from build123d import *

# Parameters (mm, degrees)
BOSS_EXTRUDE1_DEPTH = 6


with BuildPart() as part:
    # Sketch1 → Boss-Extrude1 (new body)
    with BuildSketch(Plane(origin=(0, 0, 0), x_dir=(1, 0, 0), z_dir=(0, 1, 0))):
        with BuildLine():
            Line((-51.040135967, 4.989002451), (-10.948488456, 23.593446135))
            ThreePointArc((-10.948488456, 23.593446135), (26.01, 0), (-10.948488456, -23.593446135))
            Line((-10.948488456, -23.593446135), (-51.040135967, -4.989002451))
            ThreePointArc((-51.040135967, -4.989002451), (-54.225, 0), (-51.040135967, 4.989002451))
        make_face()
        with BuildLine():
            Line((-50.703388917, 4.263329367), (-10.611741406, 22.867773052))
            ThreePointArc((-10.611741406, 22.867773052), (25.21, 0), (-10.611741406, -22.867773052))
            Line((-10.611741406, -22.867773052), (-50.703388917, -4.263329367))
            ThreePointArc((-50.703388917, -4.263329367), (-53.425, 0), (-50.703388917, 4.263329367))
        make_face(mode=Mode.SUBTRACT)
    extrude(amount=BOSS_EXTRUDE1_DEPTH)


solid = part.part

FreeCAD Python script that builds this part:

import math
import FreeCAD as App
import Part
import Sketcher
from FreeCAD import Vector
Q = App.Units.Quantity

doc = App.newDocument("Part")
params = doc.addObject("Spreadsheet::Sheet", "Params")
for row, (alias, value) in enumerate([
    ("sketch1_radius", "5.5 mm"),
    ("sketch1_radius2", "4.7 mm"),
    ("sketch1_radius3", "26.01 mm"),
    ("pad1_length", "6 mm"),
], start=1):
    params.set(f"A{row}", alias)
    params.set(f"B{row}", "=" + value)
    params.setAlias(f"B{row}", alias)

body = doc.addObject("PartDesign::Body", "Body")

# Sketch on XZ plane
sketch1 = doc.addObject("Sketcher::SketchObject", "Sketch")
body.addObject(sketch1)
sketch1.AttachmentSupport = (doc.XZ_Plane, [""])
sketch1.MapMode = "FlatFace"
sketch1.addGeometry(Part.LineSegment(Vector(-10.9, -23.6, 0), Vector(-51, -5, 0)), False)
sketch1.addGeometry(Part.ArcOfCircle(Part.Circle(Vector(-48.7, 0, 0), Vector(0, 0, 1), 5.5), math.radians(115), math.radians(245)), False)
sketch1.addGeometry(Part.LineSegment(Vector(-51, 5, 0), Vector(-10.9, 23.6, 0)), False)
sketch1.addGeometry(Part.ArcOfCircle(Part.Circle(Vector(0, 0, 0), Vector(0, 0, 1), 26), math.radians(-115), math.radians(115)), False)
sketch1.addGeometry(Part.LineSegment(Vector(-50.7, -4.3, 0), Vector(-10.6, -22.9, 0)), False)
sketch1.addGeometry(Part.ArcOfCircle(Part.Circle(Vector(0, 0, 0), Vector(0, 0, 1), 25.2), math.radians(-115), math.radians(115)), False)
sketch1.addGeometry(Part.LineSegment(Vector(-10.6, 22.9, 0), Vector(-50.7, 4.3, 0)), False)
sketch1.addGeometry(Part.ArcOfCircle(Part.Circle(Vector(-48.7, 0, 0), Vector(0, 0, 1), 4.7), math.radians(115), math.radians(245)), False)
sketch1.addConstraint(Sketcher.Constraint("Tangent", 0, 2, 1, 2))
sketch1.addConstraint(Sketcher.Constraint("Tangent", 1, 1, 2, 1))
sketch1.addConstraint(Sketcher.Constraint("Tangent", 2, 2, 3, 2))
sketch1.addConstraint(Sketcher.Constraint("Tangent", 3, 1, 0, 1))
sketch1.addConstraint(Sketcher.Constraint("Tangent", 4, 2, 5, 1))
sketch1.addConstraint(Sketcher.Constraint("Tangent", 5, 2, 6, 1))
sketch1.addConstraint(Sketcher.Constraint("Tangent", 6, 2, 7, 1))
sketch1.addConstraint(Sketcher.Constraint("Tangent", 7, 2, 4, 1))
sketch1.addConstraint(Sketcher.Constraint("Coincident", 3, 3, -1, 1))
sketch1.addConstraint(Sketcher.Constraint("Coincident", 5, 3, -1, 1))
sketch1.addConstraint(Sketcher.Constraint("Coincident", 7, 3, 1, 3))
sketch1.addConstraint(Sketcher.Constraint("PointOnObject", 1, 3, -1))
sketch1.addConstraint(Sketcher.Constraint("Parallel", 0, 4))
sketch1.addConstraint(Sketcher.Constraint("Radius", 1, Q("5.5 mm")))
sketch1.addConstraint(Sketcher.Constraint("Radius", 7, Q("4.7 mm")))
sketch1.addConstraint(Sketcher.Constraint("Radius", 3, Q("26.01 mm")))
sketch1.addConstraint(Sketcher.Constraint("DistanceX", 1, 3, -1, 1, Q("48.725 mm")))
sketch1.setExpression("Constraints[13]", "Params.sketch1_radius")
sketch1.setExpression("Constraints[14]", "Params.sketch1_radius2")
sketch1.setExpression("Constraints[15]", "Params.sketch1_radius3")
pad1 = doc.addObject("PartDesign::Pad", "Pad")
body.addObject(pad1)
pad1.Profile = sketch1
pad1.setExpression("Length", "Params.pad1_length")
pad1.Reversed = True

doc.recompute()
